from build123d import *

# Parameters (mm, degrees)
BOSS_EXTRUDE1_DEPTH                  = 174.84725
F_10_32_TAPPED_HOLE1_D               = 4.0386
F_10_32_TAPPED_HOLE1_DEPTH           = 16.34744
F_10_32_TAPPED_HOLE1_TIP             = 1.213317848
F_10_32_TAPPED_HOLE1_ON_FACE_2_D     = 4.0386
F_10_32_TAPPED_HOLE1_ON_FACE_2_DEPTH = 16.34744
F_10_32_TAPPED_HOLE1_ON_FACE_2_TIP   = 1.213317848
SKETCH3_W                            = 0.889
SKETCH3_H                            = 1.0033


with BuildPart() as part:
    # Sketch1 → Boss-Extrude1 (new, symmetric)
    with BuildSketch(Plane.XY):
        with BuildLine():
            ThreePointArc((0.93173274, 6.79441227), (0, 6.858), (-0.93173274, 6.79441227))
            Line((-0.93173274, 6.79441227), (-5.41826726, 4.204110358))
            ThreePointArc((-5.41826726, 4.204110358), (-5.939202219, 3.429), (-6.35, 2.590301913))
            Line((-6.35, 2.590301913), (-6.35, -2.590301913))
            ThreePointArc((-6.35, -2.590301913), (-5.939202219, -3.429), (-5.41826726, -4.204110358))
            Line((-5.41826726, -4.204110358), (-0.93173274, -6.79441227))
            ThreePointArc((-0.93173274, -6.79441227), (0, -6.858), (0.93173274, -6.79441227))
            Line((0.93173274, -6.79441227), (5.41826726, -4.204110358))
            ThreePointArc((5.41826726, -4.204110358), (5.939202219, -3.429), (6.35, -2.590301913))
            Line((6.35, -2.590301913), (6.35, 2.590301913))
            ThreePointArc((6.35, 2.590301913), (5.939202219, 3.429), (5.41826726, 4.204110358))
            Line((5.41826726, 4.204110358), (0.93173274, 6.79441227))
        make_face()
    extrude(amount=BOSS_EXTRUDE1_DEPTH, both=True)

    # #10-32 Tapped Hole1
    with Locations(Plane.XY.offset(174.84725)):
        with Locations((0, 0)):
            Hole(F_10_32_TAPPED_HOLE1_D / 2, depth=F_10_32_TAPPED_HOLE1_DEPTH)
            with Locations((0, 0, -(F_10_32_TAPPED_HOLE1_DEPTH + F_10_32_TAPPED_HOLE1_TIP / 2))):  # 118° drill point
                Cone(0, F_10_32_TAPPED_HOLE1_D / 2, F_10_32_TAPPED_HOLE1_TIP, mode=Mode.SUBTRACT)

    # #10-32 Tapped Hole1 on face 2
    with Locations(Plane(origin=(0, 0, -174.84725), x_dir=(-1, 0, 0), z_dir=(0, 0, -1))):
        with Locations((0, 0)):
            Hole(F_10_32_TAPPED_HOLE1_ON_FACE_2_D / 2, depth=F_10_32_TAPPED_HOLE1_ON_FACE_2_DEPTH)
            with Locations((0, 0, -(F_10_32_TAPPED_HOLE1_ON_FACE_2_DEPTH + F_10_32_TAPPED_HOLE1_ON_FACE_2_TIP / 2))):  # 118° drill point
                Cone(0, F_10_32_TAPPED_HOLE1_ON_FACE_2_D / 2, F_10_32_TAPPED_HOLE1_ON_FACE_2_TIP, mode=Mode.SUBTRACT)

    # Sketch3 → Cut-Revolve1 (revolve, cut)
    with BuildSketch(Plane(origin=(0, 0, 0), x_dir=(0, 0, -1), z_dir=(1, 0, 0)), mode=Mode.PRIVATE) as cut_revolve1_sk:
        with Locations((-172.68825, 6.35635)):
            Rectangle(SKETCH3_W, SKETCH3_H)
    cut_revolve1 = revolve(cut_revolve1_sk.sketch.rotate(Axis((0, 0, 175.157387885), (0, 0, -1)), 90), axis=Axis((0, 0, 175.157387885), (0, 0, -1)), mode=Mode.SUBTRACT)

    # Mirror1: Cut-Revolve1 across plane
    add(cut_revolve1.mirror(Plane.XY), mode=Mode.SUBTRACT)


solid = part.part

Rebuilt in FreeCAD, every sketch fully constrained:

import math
import FreeCAD as App
import Part
import Sketcher

V = App.Vector
Q = App.Units.Quantity


def add_polygon(sketch, points):
    """Adds a closed chain of lines whose ends are joined by coincident constraints."""
    first, n = sketch.GeometryCount, len(points)
    for a, b in zip(points, points[1:] + points[:1]):
        sketch.addGeometry(Part.LineSegment(App.Vector(*a, 0), App.Vector(*b, 0)), False)
    for i in range(n):
        sketch.addConstraint(Sketcher.Constraint("Coincident", first + i, 2, first + (i + 1) % n, 1))

doc = App.newDocument("Part")
body = doc.addObject("PartDesign::Body", "Body")

sketch1 = body.newObject("Sketcher::SketchObject", "Sketch")
sketch1.AttachmentSupport = (doc.getObject("XY_Plane"), [""])
sketch1.MapMode = "FlatFace"
sketch1.addGeometry(Part.ArcOfCircle(Part.Circle(V(0, 0, 0), V(0, 0, 1), 6.9), math.radians(82.19), math.radians(97.81)), False)
sketch1.addGeometry(Part.LineSegment(V(-0.9, 6.8, 0), V(-5.4, 4.2, 0)), False)
sketch1.addGeometry(Part.ArcOfCircle(Part.Circle(V(0, 0, 0), V(0, 0, 1), 6.9), math.radians(142.19), math.radians(157.81)), False)
sketch1.addGeometry(Part.LineSegment(V(-6.3, 2.6, 0), V(-6.3, -2.6, 0)), False)
sketch1.addGeometry(Part.ArcOfCircle(Part.Circle(V(0, 0, 0), V(0, 0, 1), 6.9), math.radians(-157.81), math.radians(-142.19)), False)
sketch1.addGeometry(Part.LineSegment(V(-5.4, -4.2, 0), V(-0.9, -6.8, 0)), False)
sketch1.addGeometry(Part.ArcOfCircle(Part.Circle(V(0, 0, 0), V(0, 0, 1), 6.9), math.radians(-97.81), math.radians(-82.19)), False)
sketch1.addGeometry(Part.LineSegment(V(0.9, -6.8, 0), V(5.4, -4.2, 0)), False)
sketch1.addGeometry(Part.ArcOfCircle(Part.Circle(V(0, 0, 0), V(0, 0, 1), 6.9), math.radians(-37.81), math.radians(-22.19)), False)
sketch1.addGeometry(Part.LineSegment(V(6.3, -2.6, 0), V(6.3, 2.6, 0)), False)
sketch1.addGeometry(Part.ArcOfCircle(Part.Circle(V(0, 0, 0), V(0, 0, 1), 6.9), math.radians(22.19), math.radians(37.81)), False)
sketch1.addGeometry(Part.LineSegment(V(5.4, 4.2, 0), V(0.9, 6.8, 0)), False)
sketch1.addConstraint(Sketcher.Constraint("Coincident", 0, 2, 1, 1))
sketch1.addConstraint(Sketcher.Constraint("Coincident", 1, 2, 2, 1))
sketch1.addConstraint(Sketcher.Constraint("Coincident", 2, 2, 3, 1))
sketch1.addConstraint(Sketcher.Constraint("Coincident", 3, 2, 4, 1))
sketch1.addConstraint(Sketcher.Constraint("Coincident", 4, 2, 5, 1))
sketch1.addConstraint(Sketcher.Constraint("Coincident", 5, 2, 6, 1))
sketch1.addConstraint(Sketcher.Constraint("Coincident", 6, 2, 7, 1))
sketch1.addConstraint(Sketcher.Constraint("Coincident", 7, 2, 8, 1))
sketch1.addConstraint(Sketcher.Constraint("Coincident", 8, 2, 9, 1))
sketch1.addConstraint(Sketcher.Constraint("Coincident", 9, 2, 10, 1))
sketch1.addConstraint(Sketcher.Constraint("Coincident", 10, 2, 11, 1))
sketch1.addConstraint(Sketcher.Constraint("Coincident", 11, 2, 0, 1))
sketch1.addConstraint(Sketcher.Constraint("Vertical", 3))
sketch1.addConstraint(Sketcher.Constraint("Vertical", 9))
sketch1.addConstraint(Sketcher.Constraint("Coincident", 0, 3, -1, 1))
sketch1.addConstraint(Sketcher.Constraint("Coincident", 2, 3, -1, 1))
sketch1.addConstraint(Sketcher.Constraint("Coincident", 4, 3, -1, 1))
sketch1.addConstraint(Sketcher.Constraint("Coincident", 6, 3, -1, 1))
sketch1.addConstraint(Sketcher.Constraint("Coincident", 8, 3, -1, 1))
sketch1.addConstraint(Sketcher.Constraint("Coincident", 10, 3, -1, 1))
sketch1.addConstraint(Sketcher.Constraint("Equal", 0, 2))
sketch1.addConstraint(Sketcher.Constraint("Equal", 2, 4))
sketch1.addConstraint(Sketcher.Constraint("Equal", 4, 6))
sketch1.addConstraint(Sketcher.Constraint("Equal", 6, 8))
sketch1.addConstraint(Sketcher.Constraint("Equal", 8, 10))
sketch1.addConstraint(Sketcher.Constraint("Parallel", 1, 7))
sketch1.addConstraint(Sketcher.Constraint("Parallel", 5, 11))
sketch1.addConstraint(Sketcher.Constraint("Horizontal", 5, 2, 6, 2))
sketch1.addConstraint(Sketcher.Constraint("Horizontal", 4, 2, 7, 2))
sketch1.addConstraint(Sketcher.Constraint("Horizontal", 3, 2, 8, 2))
sketch1.addConstraint(Sketcher.Constraint("Horizontal", 1, 2, 10, 2))
sketch1.addConstraint(Sketcher.Constraint("Vertical", 1, 2, 4, 2))
sketch1.addConstraint(Sketcher.Constraint("Radius", 0, Q("0.27 in")))
sketch1.addConstraint(Sketcher.Constraint("Angle", 1, Q("-150 deg")))
sketch1.addConstraint(Sketcher.Constraint("DistanceX", 2, 2, -1, 1, Q("0.25 in")))
sketch1.addConstraint(Sketcher.Constraint("DistanceX", 4, 2, 6, 2, Q("0.25 in")))
pad1 = body.newObject("PartDesign::Pad", "Pad")
pad1.Profile = sketch1
pad1.Length = Q("13.7675 in")
pad1.Midplane = True

sketch2 = body.newObject("Sketcher::SketchObject", "Sketch001")
sketch2.AttachmentSupport = (doc.getObject("XY_Plane"), [""])
sketch2.MapMode = "FlatFace"
sketch2.AttachmentOffset = App.Placement(V(0, 0, 174.84725), App.Rotation())
sketch2.addGeometry(Part.Circle(V(0, 0, 0), V(0, 0, 1), 2), False)
sketch2.addConstraint(Sketcher.Constraint("Coincident", 0, 3, -1, 1))
sketch2.addConstraint(Sketcher.Constraint("Diameter", 0, Q("0.159 in")))
doc.recompute()
hole = body.newObject("PartDesign::Hole", "Hole")
hole.Profile = sketch2
hole.ThreadType = "None"
hole.Diameter = Q("0.159 in")
hole.DepthType = "Dimension"
hole.Depth = Q("0.6436 in")
hole.DrillPoint = "Angled"
hole.DrillPointAngle = 118

sketch3 = body.newObject("Sketcher::SketchObject", "Sketch002")
sketch3.AttachmentSupport = (doc.getObject("XY_Plane"), [""])
sketch3.MapMode = "FlatFace"
sketch3.AttachmentOffset = App.Placement(V(0, 0, -174.84725), App.Rotation())
sketch3.addGeometry(Part.Circle(V(0, 0, 0), V(0, 0, 1), 2), False)
sketch3.addConstraint(Sketcher.Constraint("Coincident", 0, 3, -1, 1))
sketch3.addConstraint(Sketcher.Constraint("Diameter", 0, Q("0.159 in")))
doc.recompute()
hole2 = body.newObject("PartDesign::Hole", "Hole001")
hole2.Profile = sketch3
hole2.ThreadType = "None"
hole2.Diameter = Q("0.159 in")
hole2.DepthType = "Dimension"
hole2.Depth = Q("0.6436 in")
hole2.DrillPoint = "Angled"
hole2.DrillPointAngle = 118
hole2.Reversed = True

sketch4 = body.newObject("Sketcher::SketchObject", "Sketch003")
sketch4.AttachmentSupport = (doc.getObject("YZ_Plane"), [""])
sketch4.MapMode = "FlatFace"
add_polygon(sketch4, [(6.9, 173.1), (5.9, 173.1), (5.9, 172.2), (6.9, 172.2)])
sketch4.addConstraint(Sketcher.Constraint("Horizontal", 0))
sketch4.addConstraint(Sketcher.Constraint("Vertical", 1))
sketch4.addConstraint(Sketcher.Constraint("Horizontal", 2))
sketch4.addConstraint(Sketcher.Constraint("Vertical", 3))
sketch4.addConstraint(Sketcher.Constraint("DistanceY", 1, 2, 1, 1, Q("0.035 in")))
sketch4.addConstraint(Sketcher.Constraint("DistanceX", -1, 1, 2, 2, Q("0.27 in")))
sketch4.addConstraint(Sketcher.Constraint("DistanceX", 0, 2, 0, 1, Q("0.0395 in")))
sketch4.addConstraint(Sketcher.Constraint("DistanceY", -1, 1, 1, 2, Q("6.78125 in")))
groove = body.newObject("PartDesign::Groove", "Groove")
groove.Profile = sketch4
groove.ReferenceAxis = (sketch4, ["V_Axis"])
groove.Angle = 360
doc.recompute()

mirrored = body.newObject("PartDesign::Mirrored", "Mirrored")
mirrored.Originals = [groove]
mirrored.MirrorPlane = (doc.getObject("XY_Plane"), [""])
body.Tip = mirrored

doc.recompute()
